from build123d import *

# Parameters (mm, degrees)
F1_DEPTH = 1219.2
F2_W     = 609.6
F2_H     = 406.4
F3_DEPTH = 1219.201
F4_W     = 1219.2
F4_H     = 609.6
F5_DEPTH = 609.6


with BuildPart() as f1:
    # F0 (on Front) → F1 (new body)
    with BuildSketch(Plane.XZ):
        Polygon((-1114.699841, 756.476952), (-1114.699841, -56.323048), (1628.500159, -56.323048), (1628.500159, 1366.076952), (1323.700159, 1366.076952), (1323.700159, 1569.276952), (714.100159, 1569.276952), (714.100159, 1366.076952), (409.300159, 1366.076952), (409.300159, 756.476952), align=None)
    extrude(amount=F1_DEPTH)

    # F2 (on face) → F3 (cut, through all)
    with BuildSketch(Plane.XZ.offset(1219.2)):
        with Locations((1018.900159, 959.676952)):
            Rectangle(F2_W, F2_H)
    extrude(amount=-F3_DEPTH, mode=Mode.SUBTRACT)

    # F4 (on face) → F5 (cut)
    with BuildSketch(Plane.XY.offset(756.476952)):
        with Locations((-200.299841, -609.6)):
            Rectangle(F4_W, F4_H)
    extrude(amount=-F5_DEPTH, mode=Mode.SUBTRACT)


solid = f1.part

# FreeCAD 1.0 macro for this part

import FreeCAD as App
import Part
import Sketcher
Q = App.Units.Quantity


def add_polygon(sketch, points):
    """Adds a closed chain of lines whose ends are joined by coincident constraints."""
    first, n = sketch.GeometryCount, len(points)
    for a, b in zip(points, points[1:] + points[:1]):
        sketch.addGeometry(Part.LineSegment(App.Vector(*a, 0), App.Vector(*b, 0)), False)
    for i in range(n):
        sketch.addConstraint(Sketcher.Constraint("Coincident", first + i, 2, first + (i + 1) % n, 1))

doc = App.newDocument("Part")
params = doc.addObject("Spreadsheet::Sheet", "Params")
for row, (alias, value) in enumerate([
    ("sketch1_width", "108 in"),
    ("sketch1_width2", "12 in"),
    ("sketch1_width3", "24 in"),
    ("sketch1_height", "32 in"),
    ("sketch1_height2", "8 in"),
    ("pad1_length", "48 in"),
    ("sketch2_width", "24 in"),
    ("sketch2_height", "16 in"),
    ("sketch3_width", "48 in"),
    ("sketch3_height", "24 in"),
    ("pocket2_length", "24 in"),
], start=1):
    params.set(f"A{row}", alias)
    params.set(f"B{row}", "=" + value)
    params.setAlias(f"B{row}", alias)

body = doc.addObject("PartDesign::Body", "Body")

sketch1 = body.newObject("Sketcher::SketchObject", "Sketch")
sketch1.AttachmentSupport = (doc.getObject("XZ_Plane"), [""])
sketch1.MapMode = "FlatFace"
add_polygon(sketch1, [(-1114.699841, 756.476952), (-1114.699841, -56.323048), (1628.500159, -56.323048), (1628.500159, 1366.076952), (1323.700159, 1366.076952), (1323.700159, 1569.276952), (714.100159, 1569.276952), (714.100159, 1366.076952), (409.300159, 1366.076952), (409.300159, 756.476952)])
sketch1.addConstraint(Sketcher.Constraint("Vertical", 0))
sketch1.addConstraint(Sketcher.Constraint("Horizontal", 1))
sketch1.addConstraint(Sketcher.Constraint("Vertical", 2))
sketch1.addConstraint(Sketcher.Constraint("Horizontal", 3))
sketch1.addConstraint(Sketcher.Constraint("Vertical", 4))
sketch1.addConstraint(Sketcher.Constraint("Horizontal", 5))
sketch1.addConstraint(Sketcher.Constraint("Vertical", 6))
sketch1.addConstraint(Sketcher.Constraint("Horizontal", 7))
sketch1.addConstraint(Sketcher.Constraint("Vertical", 8))
sketch1.addConstraint(Sketcher.Constraint("Horizontal", 9))
sketch1.addConstraint(Sketcher.Constraint("Horizontal", 3, 2, 6, 2))
sketch1.addConstraint(Sketcher.Constraint("Equal", 3, 7))
sketch1.addConstraint(Sketcher.Constraint("Equal", 5, 8))
sketch1.addConstraint(Sketcher.Constraint("DistanceX", 1, 1, 1, 2, Q("108 in")))
sketch1.addConstraint(Sketcher.Constraint("DistanceX", 3, 2, 3, 1, Q("12 in")))
sketch1.addConstraint(Sketcher.Constraint("DistanceX", 5, 2, 5, 1, Q("24 in")))
sketch1.addConstraint(Sketcher.Constraint("DistanceY", 0, 2, 0, 1, Q("32 in")))
sketch1.addConstraint(Sketcher.Constraint("DistanceY", 4, 1, 4, 2, Q("8 in")))
sketch1.addConstraint(Sketcher.Constraint("DistanceX", 0, 2, -1, 1, 1114.699841))
sketch1.addConstraint(Sketcher.Constraint("DistanceY", -1, 1, 2, 2, 1366.076952))
sketch1.setExpression("Constraints[23]", "Params.sketch1_width")
sketch1.setExpression("Constraints[24]", "Params.sketch1_width2")
sketch1.setExpression("Constraints[25]", "Params.sketch1_width3")
sketch1.setExpression("Constraints[26]", "Params.sketch1_height")
sketch1.setExpression("Constraints[27]", "Params.sketch1_height2")
pad1 = body.newObject("PartDesign::Pad", "Pad")
pad1.Profile = sketch1
pad1.setExpression("Length", "Params.pad1_length")

sketch2 = body.newObject("Sketcher::SketchObject", "Sketch001")
sketch2.AttachmentSupport = (doc.getObject("XZ_Plane"), [""])
sketch2.MapMode = "FlatFace"
sketch2.AttachmentOffset = App.Placement(App.Vector(0, 0, 48 * 25.4), App.Rotation())
add_polygon(sketch2, [(714.100159, 1162.876952), (714.100159, 756.476952), (1323.700159, 756.476952), (1323.700159, 1162.876952)])
sketch2.addConstraint(Sketcher.Constraint("Vertical", 0))
sketch2.addConstraint(Sketcher.Constraint("Horizontal", 1))
sketch2.addConstraint(Sketcher.Constraint("Vertical", 2))
sketch2.addConstraint(Sketcher.Constraint("Horizontal", 3))
sketch2.addConstraint(Sketcher.Constraint("DistanceX", 1, 1, 1, 2, Q("24 in")))
sketch2.addConstraint(Sketcher.Constraint("DistanceY", 0, 2, 0, 1, Q("16 in")))
sketch2.addConstraint(Sketcher.Constraint("DistanceX", -1, 1, 0, 2, 714.100159))
sketch2.addConstraint(Sketcher.Constraint("DistanceY", -1, 1, 0, 2, 756.476952))
sketch2.setExpression("Constraints[8]", "Params.sketch2_width")
sketch2.setExpression("Constraints[9]", "Params.sketch2_height")
pocket1 = body.newObject("PartDesign::Pocket", "Pocket")
pocket1.Profile = sketch2
pocket1.Type = "ThroughAll"

sketch3 = body.newObject("Sketcher::SketchObject", "Sketch002")
sketch3.AttachmentSupport = (doc.getObject("XY_Plane"), [""])
sketch3.MapMode = "FlatFace"
sketch3.AttachmentOffset = App.Placement(App.Vector(0, 0, 756.476952), App.Rotation())
add_polygon(sketch3, [(-809.899841, -304.8), (-809.899841, -914.4), (409.300159, -914.4), (409.300159, -304.8)])
sketch3.addConstraint(Sketcher.Constraint("Vertical", 0))
sketch3.addConstraint(Sketcher.Constraint("Horizontal", 1))
sketch3.addConstraint(Sketcher.Constraint("Vertical", 2))
sketch3.addConstraint(Sketcher.Constraint("Horizontal", 3))
sketch3.addConstraint(Sketcher.Constraint("DistanceX", 1, 1, 1, 2, Q("48 in")))
sketch3.addConstraint(Sketcher.Constraint("DistanceY", 0, 2, 0, 1, Q("24 in")))
sketch3.addConstraint(Sketcher.Constraint("DistanceY", 0, 2, -1, 1, Q("36 in")))
sketch3.addConstraint(Sketcher.Constraint("DistanceX", 0, 2, -1, 1, 809.899841))
sketch3.setExpression("Constraints[8]", "Params.sketch3_width")
sketch3.setExpression("Constraints[9]", "Params.sketch3_height")
pocket2 = body.newObject("PartDesign::Pocket", "Pocket001")
pocket2.Profile = sketch3
pocket2.setExpression("Length", "Params.pocket2_length")

doc.recompute()
